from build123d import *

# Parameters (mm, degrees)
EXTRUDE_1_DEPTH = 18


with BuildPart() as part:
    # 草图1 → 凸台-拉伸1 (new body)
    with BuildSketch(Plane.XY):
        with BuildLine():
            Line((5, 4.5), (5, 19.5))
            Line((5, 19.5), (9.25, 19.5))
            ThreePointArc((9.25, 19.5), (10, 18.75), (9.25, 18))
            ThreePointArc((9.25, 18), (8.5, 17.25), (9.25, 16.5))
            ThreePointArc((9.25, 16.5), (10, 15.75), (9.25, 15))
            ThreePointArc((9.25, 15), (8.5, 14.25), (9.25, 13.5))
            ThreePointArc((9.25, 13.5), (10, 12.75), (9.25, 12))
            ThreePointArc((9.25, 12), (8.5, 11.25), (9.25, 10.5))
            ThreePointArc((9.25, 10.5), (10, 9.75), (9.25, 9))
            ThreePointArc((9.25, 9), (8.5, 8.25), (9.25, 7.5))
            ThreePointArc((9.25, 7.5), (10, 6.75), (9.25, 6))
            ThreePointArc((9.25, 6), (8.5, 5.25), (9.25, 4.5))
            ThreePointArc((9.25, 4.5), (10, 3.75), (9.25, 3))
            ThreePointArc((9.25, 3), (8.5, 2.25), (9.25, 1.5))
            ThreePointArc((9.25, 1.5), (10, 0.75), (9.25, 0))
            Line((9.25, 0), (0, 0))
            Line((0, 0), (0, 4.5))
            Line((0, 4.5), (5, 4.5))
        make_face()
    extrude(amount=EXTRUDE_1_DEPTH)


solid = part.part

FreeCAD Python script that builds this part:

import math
import FreeCAD as App
import Part
import Sketcher
from FreeCAD import Vector
Q = App.Units.Quantity

doc = App.newDocument("Part")
params = doc.addObject("Spreadsheet::Sheet", "Params")
for row, (alias, value) in enumerate([
    ("sketch1_width", "5 mm"),
    ("sketch1_height", "15 mm"),
    ("sketch1_width2", "9.25 mm"),
    ("pad1_length", "18 mm"),
], start=1):
    params.set(f"A{row}", alias)
    params.set(f"B{row}", "=" + value)
    params.setAlias(f"B{row}", alias)

body = doc.addObject("PartDesign::Body", "Body")

# Sketch on XY plane
sketch1 = doc.addObject("Sketcher::SketchObject", "Sketch")
body.addObject(sketch1)
sketch1.AttachmentSupport = (doc.XY_Plane, [""])
sketch1.MapMode = "FlatFace"
sketch1.addGeometry([
    Part.LineSegment(Vector(5, 19.5, 0), Vector(5, 4.5, 0)),  # 0
    Part.LineSegment(Vector(5, 4.5, 0), Vector(0, 4.5, 0)),  # 1
    Part.LineSegment(Vector(0, 4.5, 0), Vector(0, 0, 0)),  # 2
    Part.LineSegment(Vector(0, 0, 0), Vector(9.25, 0, 0)),  # 3
    Part.ArcOfCircle(Part.Circle(Vector(9.25, 0.75, 0), Vector(0, 0, 1), 0.75), math.radians(-90), math.radians(90)),  # 4
    Part.ArcOfCircle(Part.Circle(Vector(9.25, 2.25, 0), Vector(0, 0, 1), 0.75), math.radians(90), math.radians(270)),  # 5
    Part.ArcOfCircle(Part.Circle(Vector(9.25, 3.75, 0), Vector(0, 0, 1), 0.75), math.radians(-90), math.radians(90)),  # 6
    Part.ArcOfCircle(Part.Circle(Vector(9.25, 5.25, 0), Vector(0, 0, 1), 0.75), math.radians(90), math.radians(270)),  # 7
    Part.ArcOfCircle(Part.Circle(Vector(9.25, 6.75, 0), Vector(0, 0, 1), 0.75), math.radians(-90), math.radians(90)),  # 8
    Part.ArcOfCircle(Part.Circle(Vector(9.25, 8.25, 0), Vector(0, 0, 1), 0.75), math.radians(90), math.radians(270)),  # 9
    Part.ArcOfCircle(Part.Circle(Vector(9.25, 9.75, 0), Vector(0, 0, 1), 0.75), math.radians(-90), math.radians(90)),  # 10
    Part.ArcOfCircle(Part.Circle(Vector(9.25, 11.25, 0), Vector(0, 0, 1), 0.75), math.radians(90), math.radians(270)),  # 11
    Part.ArcOfCircle(Part.Circle(Vector(9.25, 12.75, 0), Vector(0, 0, 1), 0.75), math.radians(-90), math.radians(90)),  # 12
    Part.ArcOfCircle(Part.Circle(Vector(9.25, 14.25, 0), Vector(0, 0, 1), 0.75), math.radians(90), math.radians(270)),  # 13
    Part.ArcOfCircle(Part.Circle(Vector(9.25, 15.75, 0), Vector(0, 0, 1), 0.75), math.radians(-90), math.radians(90)),  # 14
    Part.ArcOfCircle(Part.Circle(Vector(9.25, 17.25, 0), Vector(0, 0, 1), 0.75), math.radians(90), math.radians(270)),  # 15
    Part.ArcOfCircle(Part.Circle(Vector(9.25, 18.75, 0), Vector(0, 0, 1), 0.75), math.radians(-90), math.radians(90)),  # 16
    Part.LineSegment(Vector(9.25, 19.5, 0), Vector(5, 19.5, 0)),  # 17
], False)
sketch1.addConstraint([
    Sketcher.Constraint("Coincident", 0, 2, 1, 1),
    Sketcher.Constraint("Coincident", 1, 2, 2, 1),
    Sketcher.Constraint("Coincident", 2, 2, 3, 1),
    Sketcher.Constraint("Tangent", 3, 2, 4, 1),
    Sketcher.Constraint("Tangent", 4, 2, 5, 2),
    Sketcher.Constraint("Tangent", 5, 1, 6, 1),
    Sketcher.Constraint("Tangent", 6, 2, 7, 2),
    Sketcher.Constraint("Tangent", 7, 1, 8, 1),
    Sketcher.Constraint("Tangent", 8, 2, 9, 2),
    Sketcher.Constraint("Tangent", 9, 1, 10, 1),
    Sketcher.Constraint("Tangent", 10, 2, 11, 2),
    Sketcher.Constraint("Tangent", 11, 1, 12, 1),
    Sketcher.Constraint("Tangent", 12, 2, 13, 2),
    Sketcher.Constraint("Tangent", 13, 1, 14, 1),
    Sketcher.Constraint("Tangent", 14, 2, 15, 2),
    Sketcher.Constraint("Tangent", 15, 1, 16, 1),
    Sketcher.Constraint("Tangent", 16, 2, 17, 1),
    Sketcher.Constraint("Coincident", 17, 2, 0, 1),
    Sketcher.Constraint("Vertical", 0),
    Sketcher.Constraint("Horizontal", 1),
    Sketcher.Constraint("Vertical", 2),
    Sketcher.Constraint("Horizontal", 3),
    Sketcher.Constraint("Horizontal", 17),
    Sketcher.Constraint("Coincident", 2, 2, -1, 1),
    Sketcher.Constraint("Equal", 4, 5),
    Sketcher.Constraint("Equal", 5, 6),
    Sketcher.Constraint("Equal", 6, 7),
    Sketcher.Constraint("Equal", 7, 8),
    Sketcher.Constraint("Equal", 8, 9),
    Sketcher.Constraint("Equal", 9, 10),
    Sketcher.Constraint("Equal", 10, 11),
    Sketcher.Constraint("Equal", 11, 12),
    Sketcher.Constraint("Equal", 12, 13),
    Sketcher.Constraint("Equal", 13, 14),
    Sketcher.Constraint("Equal", 14, 15),
    Sketcher.Constraint("Equal", 15, 16),
    Sketcher.Constraint("Horizontal", 1, 2, 6, 2),
    Sketcher.Constraint("Vertical", 4, 3, 5, 3),
    Sketcher.Constraint("Vertical", 5, 3, 6, 3),
    Sketcher.Constraint("Vertical", 6, 3, 7, 3),
    Sketcher.Constraint("Vertical", 7, 3, 8, 3),
    Sketcher.Constraint("Vertical", 8, 3, 9, 3),
    Sketcher.Constraint("Vertical", 9, 3, 10, 3),
    Sketcher.Constraint("Vertical", 10, 3, 11, 3),
    Sketcher.Constraint("Vertical", 11, 3, 12, 3),
    Sketcher.Constraint("Vertical", 12, 3, 13, 3),
    Sketcher.Constraint("Vertical", 13, 3, 14, 3),
    Sketcher.Constraint("Vertical", 14, 3, 15, 3),
    Sketcher.Constraint("Vertical", 15, 3, 16, 3),
    Sketcher.Constraint("DistanceX", 1, 2, 1, 1, Q("5 mm")),
    Sketcher.Constraint("DistanceY", 0, 2, 0, 1, Q("15 mm")),
    Sketcher.Constraint("DistanceX", 3, 1, 3, 2, Q("9.25 mm")),
])
sketch1.setExpression("Constraints[49]", "Params.sketch1_width")
sketch1.setExpression("Constraints[50]", "Params.sketch1_height")
sketch1.setExpression("Constraints[51]", "Params.sketch1_width2")
pad1 = doc.addObject("PartDesign::Pad", "Pad")
body.addObject(pad1)
pad1.Profile = sketch1
pad1.setExpression("Length", "Params.pad1_length")

doc.recompute()
